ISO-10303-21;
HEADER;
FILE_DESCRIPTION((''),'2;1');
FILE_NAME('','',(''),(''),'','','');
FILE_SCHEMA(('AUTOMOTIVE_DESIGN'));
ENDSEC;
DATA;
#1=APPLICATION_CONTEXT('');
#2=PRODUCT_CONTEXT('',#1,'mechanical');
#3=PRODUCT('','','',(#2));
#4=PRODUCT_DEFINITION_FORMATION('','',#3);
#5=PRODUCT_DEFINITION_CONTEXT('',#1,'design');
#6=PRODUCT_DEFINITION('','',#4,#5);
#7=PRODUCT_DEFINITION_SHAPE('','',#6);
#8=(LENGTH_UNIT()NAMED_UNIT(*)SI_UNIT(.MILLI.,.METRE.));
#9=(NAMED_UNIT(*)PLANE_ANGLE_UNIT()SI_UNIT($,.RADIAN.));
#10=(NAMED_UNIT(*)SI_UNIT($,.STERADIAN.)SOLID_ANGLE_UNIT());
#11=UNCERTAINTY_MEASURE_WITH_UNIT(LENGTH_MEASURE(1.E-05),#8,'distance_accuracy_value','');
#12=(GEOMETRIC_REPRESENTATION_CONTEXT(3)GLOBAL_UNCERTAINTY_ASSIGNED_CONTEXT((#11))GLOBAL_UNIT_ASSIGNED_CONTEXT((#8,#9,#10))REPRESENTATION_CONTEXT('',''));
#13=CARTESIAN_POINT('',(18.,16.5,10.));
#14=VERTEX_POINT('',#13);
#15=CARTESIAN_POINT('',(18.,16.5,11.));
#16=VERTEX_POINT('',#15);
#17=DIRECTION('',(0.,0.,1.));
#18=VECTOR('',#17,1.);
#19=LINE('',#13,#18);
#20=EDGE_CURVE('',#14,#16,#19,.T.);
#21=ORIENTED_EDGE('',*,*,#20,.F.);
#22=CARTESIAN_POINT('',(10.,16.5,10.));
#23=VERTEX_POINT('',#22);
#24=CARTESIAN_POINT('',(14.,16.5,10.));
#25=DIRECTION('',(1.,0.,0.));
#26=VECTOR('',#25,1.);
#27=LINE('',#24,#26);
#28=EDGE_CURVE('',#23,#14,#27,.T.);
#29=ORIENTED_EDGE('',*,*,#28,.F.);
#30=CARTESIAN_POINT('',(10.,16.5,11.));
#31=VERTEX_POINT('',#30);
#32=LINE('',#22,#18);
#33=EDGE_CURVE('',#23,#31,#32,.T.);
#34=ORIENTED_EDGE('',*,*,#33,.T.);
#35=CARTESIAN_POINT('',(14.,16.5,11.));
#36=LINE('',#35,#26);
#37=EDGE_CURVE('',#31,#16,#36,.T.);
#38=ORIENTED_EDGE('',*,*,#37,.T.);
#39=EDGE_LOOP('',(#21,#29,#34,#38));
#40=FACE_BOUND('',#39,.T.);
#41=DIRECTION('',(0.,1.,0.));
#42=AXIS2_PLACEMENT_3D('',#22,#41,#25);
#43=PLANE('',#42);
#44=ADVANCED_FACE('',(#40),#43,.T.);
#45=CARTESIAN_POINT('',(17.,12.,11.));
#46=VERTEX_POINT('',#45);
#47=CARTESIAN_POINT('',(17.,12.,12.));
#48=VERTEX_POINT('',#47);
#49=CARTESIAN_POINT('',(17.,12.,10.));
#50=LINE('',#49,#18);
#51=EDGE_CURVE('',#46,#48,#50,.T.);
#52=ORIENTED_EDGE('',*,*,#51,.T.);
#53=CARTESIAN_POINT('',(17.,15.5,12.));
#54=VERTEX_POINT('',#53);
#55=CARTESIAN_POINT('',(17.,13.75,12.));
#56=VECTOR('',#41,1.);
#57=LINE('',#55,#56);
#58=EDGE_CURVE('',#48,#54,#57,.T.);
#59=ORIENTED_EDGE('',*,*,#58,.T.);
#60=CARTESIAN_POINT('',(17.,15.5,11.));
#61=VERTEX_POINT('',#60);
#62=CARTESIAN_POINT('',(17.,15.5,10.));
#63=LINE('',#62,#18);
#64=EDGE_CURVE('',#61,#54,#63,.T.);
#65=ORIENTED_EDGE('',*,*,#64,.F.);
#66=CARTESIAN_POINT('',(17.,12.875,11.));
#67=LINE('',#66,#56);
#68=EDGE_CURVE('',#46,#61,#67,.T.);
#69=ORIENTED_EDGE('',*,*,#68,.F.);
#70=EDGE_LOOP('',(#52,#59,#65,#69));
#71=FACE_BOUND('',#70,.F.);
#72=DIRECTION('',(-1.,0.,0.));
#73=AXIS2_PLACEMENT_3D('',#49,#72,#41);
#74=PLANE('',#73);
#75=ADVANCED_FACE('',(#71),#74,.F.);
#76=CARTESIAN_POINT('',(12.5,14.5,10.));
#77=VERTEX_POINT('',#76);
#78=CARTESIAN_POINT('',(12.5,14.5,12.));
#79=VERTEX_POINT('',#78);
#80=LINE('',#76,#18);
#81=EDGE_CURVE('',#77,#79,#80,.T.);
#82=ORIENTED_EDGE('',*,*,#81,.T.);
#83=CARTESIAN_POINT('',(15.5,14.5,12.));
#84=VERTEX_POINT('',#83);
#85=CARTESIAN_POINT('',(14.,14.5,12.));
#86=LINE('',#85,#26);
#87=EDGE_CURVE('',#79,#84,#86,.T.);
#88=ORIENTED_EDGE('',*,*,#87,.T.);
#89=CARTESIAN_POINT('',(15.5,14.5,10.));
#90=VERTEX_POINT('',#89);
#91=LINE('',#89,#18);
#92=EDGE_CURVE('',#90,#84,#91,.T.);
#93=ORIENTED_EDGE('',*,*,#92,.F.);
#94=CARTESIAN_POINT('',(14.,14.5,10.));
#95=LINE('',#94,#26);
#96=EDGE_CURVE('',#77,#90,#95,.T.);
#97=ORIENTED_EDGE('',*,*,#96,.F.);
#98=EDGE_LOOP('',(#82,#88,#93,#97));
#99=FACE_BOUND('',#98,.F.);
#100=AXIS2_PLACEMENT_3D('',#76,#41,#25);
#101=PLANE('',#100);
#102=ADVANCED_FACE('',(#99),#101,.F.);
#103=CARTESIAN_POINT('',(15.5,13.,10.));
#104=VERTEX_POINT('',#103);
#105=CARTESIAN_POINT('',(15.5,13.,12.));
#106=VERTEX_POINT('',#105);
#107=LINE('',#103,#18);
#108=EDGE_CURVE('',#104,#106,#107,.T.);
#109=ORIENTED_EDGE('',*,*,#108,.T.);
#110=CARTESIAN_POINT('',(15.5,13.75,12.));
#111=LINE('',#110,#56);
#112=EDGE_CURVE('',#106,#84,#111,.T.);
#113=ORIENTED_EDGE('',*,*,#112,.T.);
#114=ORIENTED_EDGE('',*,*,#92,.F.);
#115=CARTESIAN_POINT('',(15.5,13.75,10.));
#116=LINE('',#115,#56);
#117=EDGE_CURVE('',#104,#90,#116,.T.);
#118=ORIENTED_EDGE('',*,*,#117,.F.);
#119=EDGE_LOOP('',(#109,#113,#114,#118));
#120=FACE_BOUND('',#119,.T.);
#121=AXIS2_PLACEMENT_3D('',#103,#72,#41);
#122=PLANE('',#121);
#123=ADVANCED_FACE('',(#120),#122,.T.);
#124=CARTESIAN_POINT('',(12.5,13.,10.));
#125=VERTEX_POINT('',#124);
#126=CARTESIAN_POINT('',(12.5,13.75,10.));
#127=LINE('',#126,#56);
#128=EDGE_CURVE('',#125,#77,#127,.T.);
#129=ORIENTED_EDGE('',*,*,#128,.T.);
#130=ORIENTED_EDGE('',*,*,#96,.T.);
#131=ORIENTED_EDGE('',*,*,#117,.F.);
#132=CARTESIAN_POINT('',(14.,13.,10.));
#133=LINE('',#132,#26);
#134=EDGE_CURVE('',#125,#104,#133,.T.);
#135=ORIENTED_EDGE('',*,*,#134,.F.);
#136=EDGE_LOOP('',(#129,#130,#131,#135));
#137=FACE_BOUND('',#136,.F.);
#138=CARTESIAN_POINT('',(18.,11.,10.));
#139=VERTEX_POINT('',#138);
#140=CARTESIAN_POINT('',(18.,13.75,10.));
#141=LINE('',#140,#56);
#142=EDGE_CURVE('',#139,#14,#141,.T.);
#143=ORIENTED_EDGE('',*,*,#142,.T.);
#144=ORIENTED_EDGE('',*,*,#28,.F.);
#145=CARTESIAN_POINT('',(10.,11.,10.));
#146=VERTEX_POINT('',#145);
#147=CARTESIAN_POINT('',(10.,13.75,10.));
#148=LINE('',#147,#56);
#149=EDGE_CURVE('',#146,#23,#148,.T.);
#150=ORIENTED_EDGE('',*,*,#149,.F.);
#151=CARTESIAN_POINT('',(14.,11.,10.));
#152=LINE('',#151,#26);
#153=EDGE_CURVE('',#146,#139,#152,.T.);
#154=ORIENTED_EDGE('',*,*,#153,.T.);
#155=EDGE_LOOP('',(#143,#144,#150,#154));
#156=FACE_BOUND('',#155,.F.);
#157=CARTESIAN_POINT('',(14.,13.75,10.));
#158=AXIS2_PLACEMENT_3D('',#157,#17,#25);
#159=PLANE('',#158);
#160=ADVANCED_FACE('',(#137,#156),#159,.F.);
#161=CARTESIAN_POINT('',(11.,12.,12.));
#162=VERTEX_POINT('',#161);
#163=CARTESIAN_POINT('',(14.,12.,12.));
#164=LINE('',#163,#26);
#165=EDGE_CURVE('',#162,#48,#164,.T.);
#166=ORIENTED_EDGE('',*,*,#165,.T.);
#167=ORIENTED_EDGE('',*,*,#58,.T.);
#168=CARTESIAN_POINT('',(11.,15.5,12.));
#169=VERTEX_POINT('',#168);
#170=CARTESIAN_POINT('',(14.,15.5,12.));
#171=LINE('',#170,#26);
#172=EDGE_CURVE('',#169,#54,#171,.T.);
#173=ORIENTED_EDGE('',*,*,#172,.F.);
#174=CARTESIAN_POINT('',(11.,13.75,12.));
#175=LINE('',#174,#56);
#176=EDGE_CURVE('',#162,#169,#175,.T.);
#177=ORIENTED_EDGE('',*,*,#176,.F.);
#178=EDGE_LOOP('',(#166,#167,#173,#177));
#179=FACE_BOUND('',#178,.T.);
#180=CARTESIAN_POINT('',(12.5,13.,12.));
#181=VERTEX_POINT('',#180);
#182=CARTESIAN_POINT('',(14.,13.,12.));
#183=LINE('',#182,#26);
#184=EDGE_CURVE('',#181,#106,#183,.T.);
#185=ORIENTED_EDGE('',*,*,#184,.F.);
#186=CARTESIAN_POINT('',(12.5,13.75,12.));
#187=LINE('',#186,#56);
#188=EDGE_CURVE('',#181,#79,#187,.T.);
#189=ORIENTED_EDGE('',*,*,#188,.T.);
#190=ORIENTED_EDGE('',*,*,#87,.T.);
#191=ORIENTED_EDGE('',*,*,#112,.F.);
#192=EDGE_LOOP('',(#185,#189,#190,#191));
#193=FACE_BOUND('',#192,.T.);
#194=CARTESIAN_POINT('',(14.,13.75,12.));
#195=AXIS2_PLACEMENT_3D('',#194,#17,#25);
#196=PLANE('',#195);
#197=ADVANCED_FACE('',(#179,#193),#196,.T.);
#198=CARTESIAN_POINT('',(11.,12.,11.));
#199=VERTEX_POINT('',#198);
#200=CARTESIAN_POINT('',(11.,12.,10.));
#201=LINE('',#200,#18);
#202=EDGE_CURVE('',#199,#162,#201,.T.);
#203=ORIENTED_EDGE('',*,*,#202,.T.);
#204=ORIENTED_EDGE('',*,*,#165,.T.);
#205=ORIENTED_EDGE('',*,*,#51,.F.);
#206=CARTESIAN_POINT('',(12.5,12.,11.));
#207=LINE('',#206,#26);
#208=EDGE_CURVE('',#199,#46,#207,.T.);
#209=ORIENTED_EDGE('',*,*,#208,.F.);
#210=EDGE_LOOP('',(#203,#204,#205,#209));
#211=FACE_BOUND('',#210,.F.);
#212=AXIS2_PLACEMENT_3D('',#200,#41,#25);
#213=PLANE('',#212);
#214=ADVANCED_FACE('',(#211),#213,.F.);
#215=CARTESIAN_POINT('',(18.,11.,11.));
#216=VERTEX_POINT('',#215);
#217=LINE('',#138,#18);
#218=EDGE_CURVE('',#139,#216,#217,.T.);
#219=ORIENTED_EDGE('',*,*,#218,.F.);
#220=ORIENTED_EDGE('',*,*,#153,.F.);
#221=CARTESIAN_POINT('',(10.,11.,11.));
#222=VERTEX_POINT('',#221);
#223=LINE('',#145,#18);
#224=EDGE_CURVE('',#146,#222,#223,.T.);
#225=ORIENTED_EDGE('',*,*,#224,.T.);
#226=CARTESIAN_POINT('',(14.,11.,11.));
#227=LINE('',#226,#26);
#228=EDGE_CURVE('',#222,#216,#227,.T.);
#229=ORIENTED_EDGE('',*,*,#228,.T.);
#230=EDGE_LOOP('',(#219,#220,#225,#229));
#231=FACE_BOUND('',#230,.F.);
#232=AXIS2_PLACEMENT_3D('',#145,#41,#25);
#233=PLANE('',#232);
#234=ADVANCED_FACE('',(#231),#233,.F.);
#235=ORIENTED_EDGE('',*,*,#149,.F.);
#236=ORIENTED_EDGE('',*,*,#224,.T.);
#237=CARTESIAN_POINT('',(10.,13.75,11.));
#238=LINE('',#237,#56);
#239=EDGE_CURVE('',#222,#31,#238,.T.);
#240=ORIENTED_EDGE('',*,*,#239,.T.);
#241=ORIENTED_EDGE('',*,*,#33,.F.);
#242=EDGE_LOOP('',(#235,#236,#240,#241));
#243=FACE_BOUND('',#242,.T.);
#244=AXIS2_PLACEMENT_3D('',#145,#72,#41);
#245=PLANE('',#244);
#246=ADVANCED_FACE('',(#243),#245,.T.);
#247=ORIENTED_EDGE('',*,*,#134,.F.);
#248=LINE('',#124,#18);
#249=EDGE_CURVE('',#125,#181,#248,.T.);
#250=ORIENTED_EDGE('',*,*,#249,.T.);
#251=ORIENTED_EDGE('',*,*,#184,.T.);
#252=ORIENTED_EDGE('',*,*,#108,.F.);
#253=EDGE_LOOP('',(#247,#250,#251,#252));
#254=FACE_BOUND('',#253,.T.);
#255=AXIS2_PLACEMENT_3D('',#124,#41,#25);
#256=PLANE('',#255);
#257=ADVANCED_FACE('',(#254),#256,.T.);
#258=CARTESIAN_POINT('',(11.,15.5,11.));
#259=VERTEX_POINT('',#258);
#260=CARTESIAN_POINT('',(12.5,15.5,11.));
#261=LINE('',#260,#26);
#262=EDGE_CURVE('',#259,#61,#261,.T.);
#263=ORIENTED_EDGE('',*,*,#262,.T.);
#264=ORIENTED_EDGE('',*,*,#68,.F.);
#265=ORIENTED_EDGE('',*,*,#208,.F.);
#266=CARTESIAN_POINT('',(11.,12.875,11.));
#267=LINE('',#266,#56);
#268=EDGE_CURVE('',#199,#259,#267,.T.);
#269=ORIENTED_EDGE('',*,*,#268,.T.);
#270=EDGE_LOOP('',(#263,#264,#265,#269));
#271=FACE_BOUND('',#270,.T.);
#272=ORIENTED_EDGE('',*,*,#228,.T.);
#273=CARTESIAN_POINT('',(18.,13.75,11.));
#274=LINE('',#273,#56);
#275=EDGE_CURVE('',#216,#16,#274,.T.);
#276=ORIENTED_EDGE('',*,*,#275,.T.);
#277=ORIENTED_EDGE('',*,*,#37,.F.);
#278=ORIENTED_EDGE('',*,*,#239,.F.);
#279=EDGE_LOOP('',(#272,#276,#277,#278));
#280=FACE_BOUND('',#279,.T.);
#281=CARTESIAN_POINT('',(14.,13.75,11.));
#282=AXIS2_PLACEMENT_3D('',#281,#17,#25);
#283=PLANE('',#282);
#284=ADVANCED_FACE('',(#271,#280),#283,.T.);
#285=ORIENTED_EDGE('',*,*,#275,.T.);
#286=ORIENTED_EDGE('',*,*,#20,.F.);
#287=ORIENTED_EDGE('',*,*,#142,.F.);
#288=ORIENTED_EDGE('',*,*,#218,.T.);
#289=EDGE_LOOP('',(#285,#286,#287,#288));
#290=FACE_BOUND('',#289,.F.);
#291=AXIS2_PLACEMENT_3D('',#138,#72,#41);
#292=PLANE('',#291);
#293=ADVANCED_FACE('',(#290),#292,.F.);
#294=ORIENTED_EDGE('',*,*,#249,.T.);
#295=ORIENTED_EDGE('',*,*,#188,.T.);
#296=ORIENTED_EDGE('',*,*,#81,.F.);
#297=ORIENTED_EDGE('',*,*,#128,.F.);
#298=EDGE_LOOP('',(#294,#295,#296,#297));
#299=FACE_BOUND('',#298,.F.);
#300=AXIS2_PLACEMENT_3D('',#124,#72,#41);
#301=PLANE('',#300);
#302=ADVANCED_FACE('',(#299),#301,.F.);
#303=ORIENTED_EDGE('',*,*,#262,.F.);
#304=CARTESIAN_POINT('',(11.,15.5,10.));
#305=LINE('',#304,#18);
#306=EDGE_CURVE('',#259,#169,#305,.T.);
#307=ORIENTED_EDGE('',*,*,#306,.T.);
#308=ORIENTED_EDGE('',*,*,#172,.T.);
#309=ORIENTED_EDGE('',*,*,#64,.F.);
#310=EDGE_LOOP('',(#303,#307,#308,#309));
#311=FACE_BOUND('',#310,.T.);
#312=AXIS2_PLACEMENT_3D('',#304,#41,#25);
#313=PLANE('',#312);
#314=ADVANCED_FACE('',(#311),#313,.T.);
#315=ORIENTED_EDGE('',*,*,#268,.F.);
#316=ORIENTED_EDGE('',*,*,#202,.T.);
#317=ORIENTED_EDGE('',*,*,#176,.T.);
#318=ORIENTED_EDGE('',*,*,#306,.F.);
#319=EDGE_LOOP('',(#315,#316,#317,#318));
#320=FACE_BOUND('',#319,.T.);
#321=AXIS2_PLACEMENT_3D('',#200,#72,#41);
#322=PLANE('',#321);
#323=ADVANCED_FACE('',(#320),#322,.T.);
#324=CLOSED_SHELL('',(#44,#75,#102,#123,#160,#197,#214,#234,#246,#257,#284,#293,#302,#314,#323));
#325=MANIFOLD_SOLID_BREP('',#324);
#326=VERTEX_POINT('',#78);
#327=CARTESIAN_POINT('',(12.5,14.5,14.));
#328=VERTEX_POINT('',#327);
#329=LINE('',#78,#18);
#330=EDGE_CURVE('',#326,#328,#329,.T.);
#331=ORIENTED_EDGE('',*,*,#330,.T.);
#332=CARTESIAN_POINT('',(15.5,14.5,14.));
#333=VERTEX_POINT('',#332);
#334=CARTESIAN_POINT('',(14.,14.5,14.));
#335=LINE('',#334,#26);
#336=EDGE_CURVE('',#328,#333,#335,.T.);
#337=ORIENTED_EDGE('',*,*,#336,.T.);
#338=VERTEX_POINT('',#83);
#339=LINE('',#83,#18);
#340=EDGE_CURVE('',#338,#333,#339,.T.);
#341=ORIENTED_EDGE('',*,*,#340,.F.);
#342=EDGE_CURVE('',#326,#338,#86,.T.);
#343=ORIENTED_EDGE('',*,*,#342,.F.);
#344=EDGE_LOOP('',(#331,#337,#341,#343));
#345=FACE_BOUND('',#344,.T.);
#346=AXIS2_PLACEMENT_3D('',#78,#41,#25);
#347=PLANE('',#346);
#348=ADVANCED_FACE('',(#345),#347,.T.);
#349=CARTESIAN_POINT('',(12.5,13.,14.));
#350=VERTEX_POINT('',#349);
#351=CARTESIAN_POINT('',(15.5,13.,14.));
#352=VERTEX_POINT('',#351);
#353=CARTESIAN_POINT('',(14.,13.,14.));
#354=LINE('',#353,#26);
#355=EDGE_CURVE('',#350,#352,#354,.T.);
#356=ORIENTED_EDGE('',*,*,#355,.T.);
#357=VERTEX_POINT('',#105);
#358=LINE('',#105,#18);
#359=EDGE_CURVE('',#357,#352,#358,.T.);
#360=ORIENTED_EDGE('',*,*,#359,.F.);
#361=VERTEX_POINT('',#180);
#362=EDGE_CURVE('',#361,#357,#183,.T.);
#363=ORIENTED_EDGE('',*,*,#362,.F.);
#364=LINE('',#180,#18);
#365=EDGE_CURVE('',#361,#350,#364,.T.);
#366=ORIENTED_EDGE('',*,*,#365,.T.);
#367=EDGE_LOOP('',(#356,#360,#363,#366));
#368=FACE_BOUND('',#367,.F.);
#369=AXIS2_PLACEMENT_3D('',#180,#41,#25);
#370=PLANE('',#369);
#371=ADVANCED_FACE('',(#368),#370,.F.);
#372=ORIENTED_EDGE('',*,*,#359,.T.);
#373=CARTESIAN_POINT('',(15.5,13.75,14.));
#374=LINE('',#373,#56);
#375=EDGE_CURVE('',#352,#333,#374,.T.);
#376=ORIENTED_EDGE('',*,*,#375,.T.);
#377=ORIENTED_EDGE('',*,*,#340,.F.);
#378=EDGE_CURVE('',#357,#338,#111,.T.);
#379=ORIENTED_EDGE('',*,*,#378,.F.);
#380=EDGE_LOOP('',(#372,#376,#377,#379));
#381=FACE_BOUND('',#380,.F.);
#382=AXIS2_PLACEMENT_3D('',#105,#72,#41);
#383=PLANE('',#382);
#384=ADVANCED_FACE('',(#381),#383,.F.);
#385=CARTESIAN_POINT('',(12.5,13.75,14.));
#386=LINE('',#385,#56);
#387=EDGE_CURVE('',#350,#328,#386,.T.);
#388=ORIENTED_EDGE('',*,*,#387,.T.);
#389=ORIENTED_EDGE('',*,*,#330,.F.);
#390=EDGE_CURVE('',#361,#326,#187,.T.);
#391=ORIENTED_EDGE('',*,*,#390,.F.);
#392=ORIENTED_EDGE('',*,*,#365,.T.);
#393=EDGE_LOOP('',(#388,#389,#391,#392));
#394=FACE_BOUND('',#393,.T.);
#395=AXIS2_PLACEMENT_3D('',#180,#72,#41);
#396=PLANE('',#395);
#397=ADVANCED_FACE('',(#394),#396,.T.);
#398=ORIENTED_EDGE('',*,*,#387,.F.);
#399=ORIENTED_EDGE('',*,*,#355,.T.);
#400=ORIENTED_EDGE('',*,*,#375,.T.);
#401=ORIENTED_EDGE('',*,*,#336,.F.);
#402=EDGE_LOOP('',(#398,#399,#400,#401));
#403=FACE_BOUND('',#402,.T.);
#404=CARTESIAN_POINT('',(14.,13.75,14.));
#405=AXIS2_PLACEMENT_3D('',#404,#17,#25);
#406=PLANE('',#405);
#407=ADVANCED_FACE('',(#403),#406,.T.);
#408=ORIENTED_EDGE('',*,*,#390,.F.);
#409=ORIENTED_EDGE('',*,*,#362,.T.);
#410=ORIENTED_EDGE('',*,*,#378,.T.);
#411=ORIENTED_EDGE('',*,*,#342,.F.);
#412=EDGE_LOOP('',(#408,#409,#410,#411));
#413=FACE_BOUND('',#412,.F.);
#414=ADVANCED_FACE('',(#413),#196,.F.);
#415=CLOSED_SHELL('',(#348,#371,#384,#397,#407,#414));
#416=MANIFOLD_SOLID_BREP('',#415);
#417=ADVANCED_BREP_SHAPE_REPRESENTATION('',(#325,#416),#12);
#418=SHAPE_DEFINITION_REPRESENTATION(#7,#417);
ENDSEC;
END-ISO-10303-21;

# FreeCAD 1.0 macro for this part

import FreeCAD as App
import Part
import Sketcher

V = App.Vector
Q = App.Units.Quantity


def add_polygon(sketch, points):
    """Adds a closed chain of lines whose ends are joined by coincident constraints."""
    first, n = sketch.GeometryCount, len(points)
    for a, b in zip(points, points[1:] + points[:1]):
        sketch.addGeometry(Part.LineSegment(App.Vector(*a, 0), App.Vector(*b, 0)), False)
    for i in range(n):
        sketch.addConstraint(Sketcher.Constraint("Coincident", first + i, 2, first + (i + 1) % n, 1))

doc = App.newDocument("Part")
params = doc.addObject("Spreadsheet::Sheet", "Params")
for row, (alias, value) in enumerate([
    ("sketch1_width", "3 mm"),
    ("sketch1_height", "1.5 mm"),
    ("pad1_length", "2 mm"),
    ("sketch2_width", "8 mm"),
    ("sketch2_height", "5.5 mm"),
    ("pad2_length", "1 mm"),
    ("sketch3_width", "3 mm"),
    ("sketch3_height", "1.5 mm"),
    ("pad3_length", "2 mm"),
    ("sketch4_width", "6 mm"),
    ("sketch4_height", "3.5 mm"),
    ("pad4_length", "2 mm"),
], start=1):
    params.set(f"A{row}", alias)
    params.set(f"B{row}", "=" + value)
    params.setAlias(f"B{row}", alias)

body = doc.addObject("PartDesign::Body", "Body")

# Sketch on XY plane
sketch1 = doc.addObject("Sketcher::SketchObject", "Sketch")
body.addObject(sketch1)
sketch1.AttachmentSupport = (doc.XY_Plane, [""])
sketch1.MapMode = "FlatFace"
sketch1.AttachmentOffset = App.Placement(V(0, 0, 10), App.Rotation())
add_polygon(sketch1, [(12.5, 14.5), (12.5, 13), (15.5, 13), (15.5, 14.5)])  # lines 0-3
sketch1.addConstraint([
    Sketcher.Constraint("Vertical", 0),
    Sketcher.Constraint("Horizontal", 1),
    Sketcher.Constraint("Vertical", 2),
    Sketcher.Constraint("Horizontal", 3),
    Sketcher.Constraint("DistanceX", 1, 1, 1, 2, Q("3 mm")),
    Sketcher.Constraint("DistanceY", 0, 2, 0, 1, Q("1.5 mm")),
    Sketcher.Constraint("DistanceY", -1, 1, 0, 2, Q("13 mm")),
    Sketcher.Constraint("DistanceX", -1, 1, 0, 2, Q("12.5 mm")),
])
sketch1.setExpression("Constraints[8]", "Params.sketch1_width")
sketch1.setExpression("Constraints[9]", "Params.sketch1_height")
pad1 = doc.addObject("PartDesign::Pad", "Pad")
body.addObject(pad1)
pad1.Profile = sketch1
pad1.setExpression("Length", "Params.pad1_length")
body2 = doc.addObject("PartDesign::Body", "Body001")

# Sketch on XY plane
sketch2 = doc.addObject("Sketcher::SketchObject", "Sketch001")
body2.addObject(sketch2)
sketch2.AttachmentSupport = (doc.getObject("XY_Plane001"), [""])
sketch2.MapMode = "FlatFace"
sketch2.AttachmentOffset = App.Placement(V(0, 0, 10), App.Rotation())
add_polygon(sketch2, [(10, 16), (10, 11), (18, 11), (18, 16)])  # lines 0-3
sketch2.addConstraint([
    Sketcher.Constraint("Vertical", 0),
    Sketcher.Constraint("Horizontal", 1),
    Sketcher.Constraint("Vertical", 2),
    Sketcher.Constraint("Horizontal", 3),
    Sketcher.Constraint("DistanceX", 1, 1, 1, 2, Q("8 mm")),
    Sketcher.Constraint("DistanceY", 0, 2, 0, 1, Q("5.5 mm")),
    Sketcher.Constraint("DistanceX", -1, 1, 0, 2, Q("10 mm")),
    Sketcher.Constraint("DistanceY", -1, 1, 0, 2, Q("11 mm")),
])
sketch2.setExpression("Constraints[8]", "Params.sketch2_width")
sketch2.setExpression("Constraints[9]", "Params.sketch2_height")
pad2 = doc.addObject("PartDesign::Pad", "Pad001")
body2.addObject(pad2)
pad2.Profile = sketch2
pad2.setExpression("Length", "Params.pad2_length")
body3 = doc.addObject("PartDesign::Body", "Body002")

# Sketch on XY plane
sketch3 = doc.addObject("Sketcher::SketchObject", "Sketch002")
body3.addObject(sketch3)
sketch3.AttachmentSupport = (doc.getObject("XY_Plane002"), [""])
sketch3.MapMode = "FlatFace"
sketch3.AttachmentOffset = App.Placement(V(0, 0, 12), App.Rotation())
add_polygon(sketch3, [(12.5, 14.5), (12.5, 13), (15.5, 13), (15.5, 14.5)])  # lines 0-3
sketch3.addConstraint([
    Sketcher.Constraint("Vertical", 0),
    Sketcher.Constraint("Horizontal", 1),
    Sketcher.Constraint("Vertical", 2),
    Sketcher.Constraint("Horizontal", 3),
    Sketcher.Constraint("DistanceX", 1, 1, 1, 2, Q("3 mm")),
    Sketcher.Constraint("DistanceY", 0, 2, 0, 1, Q("1.5 mm")),
    Sketcher.Constraint("DistanceY", -1, 1, 0, 2, Q("13 mm")),
    Sketcher.Constraint("DistanceX", -1, 1, 0, 2, Q("12.5 mm")),
])
sketch3.setExpression("Constraints[8]", "Params.sketch3_width")
sketch3.setExpression("Constraints[9]", "Params.sketch3_height")
pad3 = doc.addObject("PartDesign::Pad", "Pad002")
body3.addObject(pad3)
pad3.Profile = sketch3
pad3.setExpression("Length", "Params.pad3_length")
body4 = doc.addObject("PartDesign::Body", "Body003")
body4.AllowCompound = True

# Sketch on XY plane
sketch4 = doc.addObject("Sketcher::SketchObject", "Sketch003")
body4.addObject(sketch4)
sketch4.AttachmentSupport = (doc.getObject("XY_Plane003"), [""])
sketch4.MapMode = "FlatFace"
sketch4.AttachmentOffset = App.Placement(V(0, 0, 10), App.Rotation())
add_polygon(sketch4, [(11, 15.5), (11, 12), (17, 12), (17, 15.5)])  # lines 0-3
sketch4.addConstraint([
    Sketcher.Constraint("Vertical", 0),
    Sketcher.Constraint("Horizontal", 1),
    Sketcher.Constraint("Vertical", 2),
    Sketcher.Constraint("Horizontal", 3),
    Sketcher.Constraint("DistanceX", 1, 1, 1, 2, Q("6 mm")),
    Sketcher.Constraint("DistanceY", 0, 2, 0, 1, Q("3.5 mm")),
    Sketcher.Constraint("DistanceX", -1, 1, 0, 2, Q("11 mm")),
    Sketcher.Constraint("DistanceY", -1, 1, 0, 2, Q("12 mm")),
])
sketch4.setExpression("Constraints[8]", "Params.sketch4_width")
sketch4.setExpression("Constraints[9]", "Params.sketch4_height")
pad4 = doc.addObject("PartDesign::Pad", "Pad003")
body4.addObject(pad4)
pad4.Profile = sketch4
pad4.setExpression("Length", "Params.pad4_length")
doc.recompute()

boolean = doc.addObject("PartDesign::Boolean", "Boolean")
body4.addObject(boolean)
boolean.Type = "Fuse"
boolean.addObjects([body2])
doc.recompute()

boolean2 = doc.addObject("PartDesign::Boolean", "Boolean001")
body4.addObject(boolean2)
boolean2.Type = "Fuse"
boolean2.addObjects([body3])
doc.recompute()

boolean3 = doc.addObject("PartDesign::Boolean", "Boolean002")
body4.addObject(boolean3)
boolean3.Type = "Cut"
boolean3.addObjects([body])

doc.recompute()
